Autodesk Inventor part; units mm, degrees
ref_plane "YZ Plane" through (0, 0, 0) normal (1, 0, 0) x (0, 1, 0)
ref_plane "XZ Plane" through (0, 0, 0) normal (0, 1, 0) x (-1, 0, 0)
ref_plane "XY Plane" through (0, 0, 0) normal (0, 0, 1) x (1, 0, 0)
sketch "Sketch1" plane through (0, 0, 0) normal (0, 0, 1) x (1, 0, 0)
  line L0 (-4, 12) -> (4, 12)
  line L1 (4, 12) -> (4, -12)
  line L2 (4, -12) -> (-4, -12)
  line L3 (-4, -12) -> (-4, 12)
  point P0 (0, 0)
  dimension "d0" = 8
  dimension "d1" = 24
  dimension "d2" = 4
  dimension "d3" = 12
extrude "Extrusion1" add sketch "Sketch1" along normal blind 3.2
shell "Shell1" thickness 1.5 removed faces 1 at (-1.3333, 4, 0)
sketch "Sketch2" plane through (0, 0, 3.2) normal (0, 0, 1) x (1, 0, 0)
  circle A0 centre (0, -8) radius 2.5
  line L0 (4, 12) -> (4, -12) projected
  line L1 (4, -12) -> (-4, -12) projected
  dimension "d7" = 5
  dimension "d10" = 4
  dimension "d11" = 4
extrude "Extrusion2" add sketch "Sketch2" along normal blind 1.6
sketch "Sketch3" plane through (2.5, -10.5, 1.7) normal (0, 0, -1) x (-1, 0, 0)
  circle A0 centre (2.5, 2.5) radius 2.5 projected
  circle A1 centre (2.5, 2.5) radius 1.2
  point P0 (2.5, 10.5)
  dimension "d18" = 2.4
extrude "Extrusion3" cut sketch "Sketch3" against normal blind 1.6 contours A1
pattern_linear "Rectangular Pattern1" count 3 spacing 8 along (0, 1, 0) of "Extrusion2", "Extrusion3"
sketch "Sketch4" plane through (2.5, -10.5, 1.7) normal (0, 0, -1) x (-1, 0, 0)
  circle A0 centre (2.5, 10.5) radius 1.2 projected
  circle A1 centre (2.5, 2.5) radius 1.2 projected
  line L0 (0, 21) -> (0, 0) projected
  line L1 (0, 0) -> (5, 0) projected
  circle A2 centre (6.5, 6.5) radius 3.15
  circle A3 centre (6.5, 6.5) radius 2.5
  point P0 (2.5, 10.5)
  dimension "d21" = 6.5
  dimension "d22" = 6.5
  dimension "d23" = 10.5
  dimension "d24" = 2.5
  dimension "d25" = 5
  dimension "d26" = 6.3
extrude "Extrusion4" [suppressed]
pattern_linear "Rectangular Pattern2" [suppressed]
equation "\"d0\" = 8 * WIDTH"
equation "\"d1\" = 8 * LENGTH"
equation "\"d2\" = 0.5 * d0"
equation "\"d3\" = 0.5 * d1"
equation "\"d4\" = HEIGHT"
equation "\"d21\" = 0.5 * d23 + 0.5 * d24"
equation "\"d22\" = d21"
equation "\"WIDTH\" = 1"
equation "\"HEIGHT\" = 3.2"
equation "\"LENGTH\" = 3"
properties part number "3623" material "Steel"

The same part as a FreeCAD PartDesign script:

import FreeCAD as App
import Part
import Sketcher
from FreeCAD import Vector


def faces_at(feature, points):
    """Names of the faces that lie closest to the given points."""
    faces = feature.Shape.Faces
    near = lambda p: min(range(len(faces)), key=lambda i: faces[i].distToShape(Part.Vertex(*p))[0])
    return sorted({f"Face{near(p) + 1}" for p in points})

doc = App.newDocument("Part")
body = doc.addObject("PartDesign::Body", "Body")

# Sketch on XY plane
sketch1 = body.newObject("Sketcher::SketchObject", "Sketch")
sketch1.AttachmentSupport = (doc.getObject("XY_Plane"), [""])
sketch1.MapMode = "FlatFace"
sketch1.addGeometry([
    Part.LineSegment(Vector(4, 12, 0), Vector(-4, 12, 0)),
    Part.LineSegment(Vector(-4, 12, 0), Vector(-4, -12, 0)),
    Part.LineSegment(Vector(-4, -12, 0), Vector(4, -12, 0)),
    Part.LineSegment(Vector(4, -12, 0), Vector(4, 12, 0)),
], False)
sketch1.addConstraint([
    Sketcher.Constraint("Coincident", 0, 2, 1, 1),
    Sketcher.Constraint("Coincident", 1, 2, 2, 1),
    Sketcher.Constraint("Coincident", 2, 2, 3, 1),
    Sketcher.Constraint("Coincident", 3, 2, 0, 1),
    Sketcher.Constraint("Horizontal", 0),
    Sketcher.Constraint("Vertical", 1),
    Sketcher.Constraint("Horizontal", 2),
    Sketcher.Constraint("Vertical", 3),
    Sketcher.Constraint("Symmetric", 0, 2, 2, 2, -1, 1),
    Sketcher.Constraint("DistanceX", 0, 2, 0, 1, 8.0),
    Sketcher.Constraint("DistanceY", 1, 2, 1, 1, 24.0),
])
pad1 = body.newObject("PartDesign::Pad", "Pad")
pad1.Profile = sketch1
pad1.Length = 3.2
doc.recompute()

thickness = body.newObject("PartDesign::Thickness", "Thickness")
thickness.Base = (pad1, faces_at(pad1, [(-1.333, 4, 0)]))
thickness.Value = 1.5
thickness.Reversed = True
thickness.Join = "Intersection"

# Sketch on XY plane
sketch2 = body.newObject("Sketcher::SketchObject", "Sketch001")
sketch2.AttachmentSupport = (doc.getObject("XY_Plane"), [""])
sketch2.MapMode = "FlatFace"
sketch2.AttachmentOffset = App.Placement(Vector(0, 0, 3.2), App.Rotation())
sketch2.addGeometry(Part.Circle(Vector(0, -8, 0), Vector(0, 0, 1), 2.5), False)
sketch2.addConstraint([
    Sketcher.Constraint("PointOnObject", 0, 3, -2),
    Sketcher.Constraint("Diameter", 0, 5.0),
    Sketcher.Constraint("DistanceY", 0, 3, -1, 1, 8.0),
])
pad2 = body.newObject("PartDesign::Pad", "Pad001")
pad2.Profile = sketch2
pad2.Length = 1.6

# Sketch on XY plane
sketch3 = body.newObject("Sketcher::SketchObject", "Sketch002")
sketch3.AttachmentSupport = (doc.getObject("XY_Plane"), [""])
sketch3.MapMode = "FlatFace"
sketch3.AttachmentOffset = App.Placement(Vector(0, 0, 1.7), App.Rotation())
sketch3.addGeometry(Part.Circle(Vector(0, -8, 0), Vector(0, 0, 1), 1.2), False)
sketch3.addConstraint([
    Sketcher.Constraint("PointOnObject", 0, 3, -2),
    Sketcher.Constraint("Diameter", 0, 2.4),
    Sketcher.Constraint("DistanceY", 0, 3, -1, 1, 8.0),
])
pocket1 = body.newObject("PartDesign::Pocket", "Pocket")
pocket1.Profile = sketch3
pocket1.Length = 1.6
pocket1.Reversed = True
doc.recompute()

linearpattern = body.newObject("PartDesign::LinearPattern", "LinearPattern")
linearpattern.Originals = [pad2, pocket1]
linearpattern.Direction = (doc.getObject("Y_Axis"), [""])
linearpattern.Mode = "offset"
linearpattern.Offset = 8
linearpattern.Occurrences = 3
body.Tip = linearpattern

doc.recompute()
